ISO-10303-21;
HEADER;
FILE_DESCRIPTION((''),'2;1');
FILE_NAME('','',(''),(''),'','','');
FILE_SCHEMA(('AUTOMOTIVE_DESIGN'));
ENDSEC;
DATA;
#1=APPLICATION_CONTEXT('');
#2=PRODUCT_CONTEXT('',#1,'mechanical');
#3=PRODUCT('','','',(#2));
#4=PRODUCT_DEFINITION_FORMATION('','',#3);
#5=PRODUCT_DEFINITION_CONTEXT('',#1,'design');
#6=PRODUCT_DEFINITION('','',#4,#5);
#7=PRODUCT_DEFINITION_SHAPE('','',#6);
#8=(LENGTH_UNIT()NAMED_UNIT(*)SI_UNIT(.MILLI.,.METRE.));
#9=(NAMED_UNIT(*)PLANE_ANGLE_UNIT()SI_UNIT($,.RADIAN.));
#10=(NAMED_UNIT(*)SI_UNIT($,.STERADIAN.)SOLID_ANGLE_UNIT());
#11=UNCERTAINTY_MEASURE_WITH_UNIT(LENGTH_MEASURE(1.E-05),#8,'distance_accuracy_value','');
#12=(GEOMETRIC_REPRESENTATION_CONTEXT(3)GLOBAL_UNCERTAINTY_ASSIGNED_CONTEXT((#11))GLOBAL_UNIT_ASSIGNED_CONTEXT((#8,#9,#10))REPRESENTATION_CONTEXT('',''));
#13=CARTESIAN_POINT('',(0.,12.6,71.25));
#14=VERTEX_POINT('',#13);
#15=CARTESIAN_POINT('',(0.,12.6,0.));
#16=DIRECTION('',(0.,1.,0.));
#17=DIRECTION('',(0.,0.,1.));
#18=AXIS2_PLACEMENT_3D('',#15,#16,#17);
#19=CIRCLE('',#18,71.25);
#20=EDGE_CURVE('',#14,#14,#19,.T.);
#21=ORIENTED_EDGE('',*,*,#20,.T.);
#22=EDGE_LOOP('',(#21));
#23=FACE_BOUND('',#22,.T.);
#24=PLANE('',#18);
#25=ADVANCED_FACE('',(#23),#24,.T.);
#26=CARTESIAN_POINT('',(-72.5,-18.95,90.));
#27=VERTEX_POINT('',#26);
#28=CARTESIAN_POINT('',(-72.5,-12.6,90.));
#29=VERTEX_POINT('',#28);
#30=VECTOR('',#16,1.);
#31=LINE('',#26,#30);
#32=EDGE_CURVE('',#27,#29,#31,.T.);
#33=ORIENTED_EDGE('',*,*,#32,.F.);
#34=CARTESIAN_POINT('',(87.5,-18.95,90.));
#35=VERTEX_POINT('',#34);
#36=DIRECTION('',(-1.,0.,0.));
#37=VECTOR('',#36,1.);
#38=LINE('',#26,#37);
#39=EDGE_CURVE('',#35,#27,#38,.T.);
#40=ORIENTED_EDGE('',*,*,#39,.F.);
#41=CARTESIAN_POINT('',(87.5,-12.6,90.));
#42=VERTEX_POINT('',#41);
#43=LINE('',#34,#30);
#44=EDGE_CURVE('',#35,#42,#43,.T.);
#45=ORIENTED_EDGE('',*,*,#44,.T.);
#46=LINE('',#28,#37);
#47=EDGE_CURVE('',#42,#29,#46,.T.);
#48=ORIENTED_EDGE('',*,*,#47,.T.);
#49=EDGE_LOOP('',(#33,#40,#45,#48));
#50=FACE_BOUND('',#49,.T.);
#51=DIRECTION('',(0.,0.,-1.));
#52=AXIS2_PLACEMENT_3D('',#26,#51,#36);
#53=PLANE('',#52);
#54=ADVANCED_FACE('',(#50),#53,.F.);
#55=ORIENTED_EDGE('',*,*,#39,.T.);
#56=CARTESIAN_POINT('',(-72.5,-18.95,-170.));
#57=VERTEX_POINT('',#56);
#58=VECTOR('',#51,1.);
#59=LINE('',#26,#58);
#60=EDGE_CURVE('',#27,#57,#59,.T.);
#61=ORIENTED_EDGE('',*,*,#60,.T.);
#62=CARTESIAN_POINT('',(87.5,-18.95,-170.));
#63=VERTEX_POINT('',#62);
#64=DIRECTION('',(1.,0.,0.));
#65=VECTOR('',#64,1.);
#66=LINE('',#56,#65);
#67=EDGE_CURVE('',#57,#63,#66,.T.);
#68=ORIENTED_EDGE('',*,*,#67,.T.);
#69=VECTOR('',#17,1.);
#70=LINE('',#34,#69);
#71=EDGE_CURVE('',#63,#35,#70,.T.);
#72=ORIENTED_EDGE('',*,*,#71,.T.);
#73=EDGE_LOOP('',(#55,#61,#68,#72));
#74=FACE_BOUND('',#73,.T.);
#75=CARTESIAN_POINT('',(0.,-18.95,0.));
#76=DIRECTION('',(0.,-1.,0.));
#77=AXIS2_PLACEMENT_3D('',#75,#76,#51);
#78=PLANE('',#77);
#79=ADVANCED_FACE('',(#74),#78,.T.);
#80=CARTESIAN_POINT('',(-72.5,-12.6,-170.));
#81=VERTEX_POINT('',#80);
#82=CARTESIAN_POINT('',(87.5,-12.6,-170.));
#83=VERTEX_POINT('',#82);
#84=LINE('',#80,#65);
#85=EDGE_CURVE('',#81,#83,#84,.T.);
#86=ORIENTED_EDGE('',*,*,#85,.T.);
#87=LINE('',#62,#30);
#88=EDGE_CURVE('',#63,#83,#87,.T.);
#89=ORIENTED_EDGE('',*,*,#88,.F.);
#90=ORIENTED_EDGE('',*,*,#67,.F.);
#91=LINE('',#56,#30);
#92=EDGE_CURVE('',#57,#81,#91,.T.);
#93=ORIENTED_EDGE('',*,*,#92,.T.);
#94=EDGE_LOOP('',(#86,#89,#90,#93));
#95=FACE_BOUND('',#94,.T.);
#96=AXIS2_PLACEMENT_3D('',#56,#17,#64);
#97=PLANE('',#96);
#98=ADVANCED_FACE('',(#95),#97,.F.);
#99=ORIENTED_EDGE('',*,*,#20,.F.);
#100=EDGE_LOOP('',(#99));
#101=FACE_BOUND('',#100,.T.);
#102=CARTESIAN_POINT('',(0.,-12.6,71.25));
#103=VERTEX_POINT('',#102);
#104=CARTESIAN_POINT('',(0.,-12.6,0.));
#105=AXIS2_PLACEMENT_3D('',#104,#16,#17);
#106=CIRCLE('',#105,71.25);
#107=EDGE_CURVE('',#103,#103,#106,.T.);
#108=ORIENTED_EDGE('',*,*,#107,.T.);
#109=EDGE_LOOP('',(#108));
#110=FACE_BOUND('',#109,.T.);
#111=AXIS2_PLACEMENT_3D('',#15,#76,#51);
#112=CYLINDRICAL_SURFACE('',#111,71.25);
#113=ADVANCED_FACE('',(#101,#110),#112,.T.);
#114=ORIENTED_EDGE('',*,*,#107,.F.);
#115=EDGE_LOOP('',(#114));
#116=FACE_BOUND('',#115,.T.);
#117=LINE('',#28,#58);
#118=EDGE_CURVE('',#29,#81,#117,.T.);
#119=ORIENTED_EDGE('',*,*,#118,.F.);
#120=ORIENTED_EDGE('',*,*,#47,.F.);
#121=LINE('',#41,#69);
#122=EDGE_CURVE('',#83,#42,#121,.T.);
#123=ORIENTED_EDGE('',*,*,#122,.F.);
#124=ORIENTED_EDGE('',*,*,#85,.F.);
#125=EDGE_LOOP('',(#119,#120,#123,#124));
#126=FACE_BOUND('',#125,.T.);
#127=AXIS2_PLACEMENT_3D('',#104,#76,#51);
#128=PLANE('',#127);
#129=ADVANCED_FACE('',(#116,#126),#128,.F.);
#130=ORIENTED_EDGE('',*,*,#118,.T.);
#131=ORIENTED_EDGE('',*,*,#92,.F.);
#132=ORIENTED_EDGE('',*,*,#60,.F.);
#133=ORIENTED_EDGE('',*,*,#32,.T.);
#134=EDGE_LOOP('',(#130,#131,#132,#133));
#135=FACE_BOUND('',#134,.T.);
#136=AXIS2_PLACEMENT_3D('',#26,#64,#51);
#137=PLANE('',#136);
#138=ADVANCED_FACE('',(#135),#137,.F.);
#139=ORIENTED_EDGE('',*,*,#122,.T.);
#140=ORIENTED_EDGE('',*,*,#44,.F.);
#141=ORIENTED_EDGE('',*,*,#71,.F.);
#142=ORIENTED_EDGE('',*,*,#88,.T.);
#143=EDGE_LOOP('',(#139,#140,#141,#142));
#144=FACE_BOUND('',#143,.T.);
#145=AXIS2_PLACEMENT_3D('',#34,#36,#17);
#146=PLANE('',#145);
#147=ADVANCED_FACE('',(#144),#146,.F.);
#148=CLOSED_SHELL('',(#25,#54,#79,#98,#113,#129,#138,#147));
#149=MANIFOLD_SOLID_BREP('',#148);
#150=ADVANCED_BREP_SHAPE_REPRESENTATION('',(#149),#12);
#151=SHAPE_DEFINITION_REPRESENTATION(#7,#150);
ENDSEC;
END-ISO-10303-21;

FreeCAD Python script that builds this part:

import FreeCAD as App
import Part
import Sketcher
from FreeCAD import Vector
Q = App.Units.Quantity

doc = App.newDocument("Part")
params = doc.addObject("Spreadsheet::Sheet", "Params")
for row, (alias, value) in enumerate([
    ("sketch1_diameter", "142.5 mm"),
    ("pad1_length", "25.2 mm"),
    ("sketch2_width", "160 mm"),
    ("sketch2_height", "260 mm"),
    ("pad2_length", "6.35 mm"),
], start=1):
    params.set(f"A{row}", alias)
    params.set(f"B{row}", "=" + value)
    params.setAlias(f"B{row}", alias)

body = doc.addObject("PartDesign::Body", "Body")

sketch1 = body.newObject("Sketcher::SketchObject", "Sketch")
sketch1.AttachmentSupport = (doc.getObject("XZ_Plane"), [""])
sketch1.MapMode = "FlatFace"
sketch1.addGeometry(Part.Circle(Vector(0, 0, 0), Vector(0, 0, 1), 71.25), False)
sketch1.addConstraint(Sketcher.Constraint("Coincident", 0, 3, -1, 1))
sketch1.addConstraint(Sketcher.Constraint("Diameter", 0, Q("142.5 mm")))
sketch1.setExpression("Constraints[1]", "Params.sketch1_diameter")
pad1 = body.newObject("PartDesign::Pad", "Pad")
pad1.Profile = sketch1
pad1.setExpression("Length", "Params.pad1_length")
pad1.Midplane = True

sketch2 = body.newObject("Sketcher::SketchObject", "Sketch001")
sketch2.AttachmentSupport = (doc.getObject("XZ_Plane"), [""])
sketch2.MapMode = "FlatFace"
sketch2.AttachmentOffset = App.Placement(Vector(0, 0, 12.6), App.Rotation())
sketch2.addGeometry(Part.LineSegment(Vector(-72.5, 90, 0), Vector(-72.5, -170, 0)), False)
sketch2.addGeometry(Part.LineSegment(Vector(-72.5, -170, 0), Vector(87.5, -170, 0)), False)
sketch2.addGeometry(Part.LineSegment(Vector(87.5, -170, 0), Vector(87.5, 90, 0)), False)
sketch2.addGeometry(Part.LineSegment(Vector(87.5, 90, 0), Vector(-72.5, 90, 0)), False)
sketch2.addConstraint(Sketcher.Constraint("Coincident", 0, 2, 1, 1))
sketch2.addConstraint(Sketcher.Constraint("Coincident", 1, 2, 2, 1))
sketch2.addConstraint(Sketcher.Constraint("Coincident", 2, 2, 3, 1))
sketch2.addConstraint(Sketcher.Constraint("Coincident", 3, 2, 0, 1))
sketch2.addConstraint(Sketcher.Constraint("Vertical", 0))
sketch2.addConstraint(Sketcher.Constraint("Horizontal", 1))
sketch2.addConstraint(Sketcher.Constraint("Vertical", 2))
sketch2.addConstraint(Sketcher.Constraint("Horizontal", 3))
sketch2.addConstraint(Sketcher.Constraint("DistanceX", 1, 1, 1, 2, Q("160 mm")))
sketch2.addConstraint(Sketcher.Constraint("DistanceY", 0, 2, 0, 1, Q("260 mm")))
sketch2.addConstraint(Sketcher.Constraint("DistanceY", 0, 2, -1, 1, Q("170 mm")))
sketch2.addConstraint(Sketcher.Constraint("DistanceX", 0, 2, -1, 1, Q("72.5 mm")))
sketch2.setExpression("Constraints[8]", "Params.sketch2_width")
sketch2.setExpression("Constraints[9]", "Params.sketch2_height")
pad2 = body.newObject("PartDesign::Pad", "Pad001")
pad2.Profile = sketch2
pad2.setExpression("Length", "Params.pad2_length")

doc.recompute()
